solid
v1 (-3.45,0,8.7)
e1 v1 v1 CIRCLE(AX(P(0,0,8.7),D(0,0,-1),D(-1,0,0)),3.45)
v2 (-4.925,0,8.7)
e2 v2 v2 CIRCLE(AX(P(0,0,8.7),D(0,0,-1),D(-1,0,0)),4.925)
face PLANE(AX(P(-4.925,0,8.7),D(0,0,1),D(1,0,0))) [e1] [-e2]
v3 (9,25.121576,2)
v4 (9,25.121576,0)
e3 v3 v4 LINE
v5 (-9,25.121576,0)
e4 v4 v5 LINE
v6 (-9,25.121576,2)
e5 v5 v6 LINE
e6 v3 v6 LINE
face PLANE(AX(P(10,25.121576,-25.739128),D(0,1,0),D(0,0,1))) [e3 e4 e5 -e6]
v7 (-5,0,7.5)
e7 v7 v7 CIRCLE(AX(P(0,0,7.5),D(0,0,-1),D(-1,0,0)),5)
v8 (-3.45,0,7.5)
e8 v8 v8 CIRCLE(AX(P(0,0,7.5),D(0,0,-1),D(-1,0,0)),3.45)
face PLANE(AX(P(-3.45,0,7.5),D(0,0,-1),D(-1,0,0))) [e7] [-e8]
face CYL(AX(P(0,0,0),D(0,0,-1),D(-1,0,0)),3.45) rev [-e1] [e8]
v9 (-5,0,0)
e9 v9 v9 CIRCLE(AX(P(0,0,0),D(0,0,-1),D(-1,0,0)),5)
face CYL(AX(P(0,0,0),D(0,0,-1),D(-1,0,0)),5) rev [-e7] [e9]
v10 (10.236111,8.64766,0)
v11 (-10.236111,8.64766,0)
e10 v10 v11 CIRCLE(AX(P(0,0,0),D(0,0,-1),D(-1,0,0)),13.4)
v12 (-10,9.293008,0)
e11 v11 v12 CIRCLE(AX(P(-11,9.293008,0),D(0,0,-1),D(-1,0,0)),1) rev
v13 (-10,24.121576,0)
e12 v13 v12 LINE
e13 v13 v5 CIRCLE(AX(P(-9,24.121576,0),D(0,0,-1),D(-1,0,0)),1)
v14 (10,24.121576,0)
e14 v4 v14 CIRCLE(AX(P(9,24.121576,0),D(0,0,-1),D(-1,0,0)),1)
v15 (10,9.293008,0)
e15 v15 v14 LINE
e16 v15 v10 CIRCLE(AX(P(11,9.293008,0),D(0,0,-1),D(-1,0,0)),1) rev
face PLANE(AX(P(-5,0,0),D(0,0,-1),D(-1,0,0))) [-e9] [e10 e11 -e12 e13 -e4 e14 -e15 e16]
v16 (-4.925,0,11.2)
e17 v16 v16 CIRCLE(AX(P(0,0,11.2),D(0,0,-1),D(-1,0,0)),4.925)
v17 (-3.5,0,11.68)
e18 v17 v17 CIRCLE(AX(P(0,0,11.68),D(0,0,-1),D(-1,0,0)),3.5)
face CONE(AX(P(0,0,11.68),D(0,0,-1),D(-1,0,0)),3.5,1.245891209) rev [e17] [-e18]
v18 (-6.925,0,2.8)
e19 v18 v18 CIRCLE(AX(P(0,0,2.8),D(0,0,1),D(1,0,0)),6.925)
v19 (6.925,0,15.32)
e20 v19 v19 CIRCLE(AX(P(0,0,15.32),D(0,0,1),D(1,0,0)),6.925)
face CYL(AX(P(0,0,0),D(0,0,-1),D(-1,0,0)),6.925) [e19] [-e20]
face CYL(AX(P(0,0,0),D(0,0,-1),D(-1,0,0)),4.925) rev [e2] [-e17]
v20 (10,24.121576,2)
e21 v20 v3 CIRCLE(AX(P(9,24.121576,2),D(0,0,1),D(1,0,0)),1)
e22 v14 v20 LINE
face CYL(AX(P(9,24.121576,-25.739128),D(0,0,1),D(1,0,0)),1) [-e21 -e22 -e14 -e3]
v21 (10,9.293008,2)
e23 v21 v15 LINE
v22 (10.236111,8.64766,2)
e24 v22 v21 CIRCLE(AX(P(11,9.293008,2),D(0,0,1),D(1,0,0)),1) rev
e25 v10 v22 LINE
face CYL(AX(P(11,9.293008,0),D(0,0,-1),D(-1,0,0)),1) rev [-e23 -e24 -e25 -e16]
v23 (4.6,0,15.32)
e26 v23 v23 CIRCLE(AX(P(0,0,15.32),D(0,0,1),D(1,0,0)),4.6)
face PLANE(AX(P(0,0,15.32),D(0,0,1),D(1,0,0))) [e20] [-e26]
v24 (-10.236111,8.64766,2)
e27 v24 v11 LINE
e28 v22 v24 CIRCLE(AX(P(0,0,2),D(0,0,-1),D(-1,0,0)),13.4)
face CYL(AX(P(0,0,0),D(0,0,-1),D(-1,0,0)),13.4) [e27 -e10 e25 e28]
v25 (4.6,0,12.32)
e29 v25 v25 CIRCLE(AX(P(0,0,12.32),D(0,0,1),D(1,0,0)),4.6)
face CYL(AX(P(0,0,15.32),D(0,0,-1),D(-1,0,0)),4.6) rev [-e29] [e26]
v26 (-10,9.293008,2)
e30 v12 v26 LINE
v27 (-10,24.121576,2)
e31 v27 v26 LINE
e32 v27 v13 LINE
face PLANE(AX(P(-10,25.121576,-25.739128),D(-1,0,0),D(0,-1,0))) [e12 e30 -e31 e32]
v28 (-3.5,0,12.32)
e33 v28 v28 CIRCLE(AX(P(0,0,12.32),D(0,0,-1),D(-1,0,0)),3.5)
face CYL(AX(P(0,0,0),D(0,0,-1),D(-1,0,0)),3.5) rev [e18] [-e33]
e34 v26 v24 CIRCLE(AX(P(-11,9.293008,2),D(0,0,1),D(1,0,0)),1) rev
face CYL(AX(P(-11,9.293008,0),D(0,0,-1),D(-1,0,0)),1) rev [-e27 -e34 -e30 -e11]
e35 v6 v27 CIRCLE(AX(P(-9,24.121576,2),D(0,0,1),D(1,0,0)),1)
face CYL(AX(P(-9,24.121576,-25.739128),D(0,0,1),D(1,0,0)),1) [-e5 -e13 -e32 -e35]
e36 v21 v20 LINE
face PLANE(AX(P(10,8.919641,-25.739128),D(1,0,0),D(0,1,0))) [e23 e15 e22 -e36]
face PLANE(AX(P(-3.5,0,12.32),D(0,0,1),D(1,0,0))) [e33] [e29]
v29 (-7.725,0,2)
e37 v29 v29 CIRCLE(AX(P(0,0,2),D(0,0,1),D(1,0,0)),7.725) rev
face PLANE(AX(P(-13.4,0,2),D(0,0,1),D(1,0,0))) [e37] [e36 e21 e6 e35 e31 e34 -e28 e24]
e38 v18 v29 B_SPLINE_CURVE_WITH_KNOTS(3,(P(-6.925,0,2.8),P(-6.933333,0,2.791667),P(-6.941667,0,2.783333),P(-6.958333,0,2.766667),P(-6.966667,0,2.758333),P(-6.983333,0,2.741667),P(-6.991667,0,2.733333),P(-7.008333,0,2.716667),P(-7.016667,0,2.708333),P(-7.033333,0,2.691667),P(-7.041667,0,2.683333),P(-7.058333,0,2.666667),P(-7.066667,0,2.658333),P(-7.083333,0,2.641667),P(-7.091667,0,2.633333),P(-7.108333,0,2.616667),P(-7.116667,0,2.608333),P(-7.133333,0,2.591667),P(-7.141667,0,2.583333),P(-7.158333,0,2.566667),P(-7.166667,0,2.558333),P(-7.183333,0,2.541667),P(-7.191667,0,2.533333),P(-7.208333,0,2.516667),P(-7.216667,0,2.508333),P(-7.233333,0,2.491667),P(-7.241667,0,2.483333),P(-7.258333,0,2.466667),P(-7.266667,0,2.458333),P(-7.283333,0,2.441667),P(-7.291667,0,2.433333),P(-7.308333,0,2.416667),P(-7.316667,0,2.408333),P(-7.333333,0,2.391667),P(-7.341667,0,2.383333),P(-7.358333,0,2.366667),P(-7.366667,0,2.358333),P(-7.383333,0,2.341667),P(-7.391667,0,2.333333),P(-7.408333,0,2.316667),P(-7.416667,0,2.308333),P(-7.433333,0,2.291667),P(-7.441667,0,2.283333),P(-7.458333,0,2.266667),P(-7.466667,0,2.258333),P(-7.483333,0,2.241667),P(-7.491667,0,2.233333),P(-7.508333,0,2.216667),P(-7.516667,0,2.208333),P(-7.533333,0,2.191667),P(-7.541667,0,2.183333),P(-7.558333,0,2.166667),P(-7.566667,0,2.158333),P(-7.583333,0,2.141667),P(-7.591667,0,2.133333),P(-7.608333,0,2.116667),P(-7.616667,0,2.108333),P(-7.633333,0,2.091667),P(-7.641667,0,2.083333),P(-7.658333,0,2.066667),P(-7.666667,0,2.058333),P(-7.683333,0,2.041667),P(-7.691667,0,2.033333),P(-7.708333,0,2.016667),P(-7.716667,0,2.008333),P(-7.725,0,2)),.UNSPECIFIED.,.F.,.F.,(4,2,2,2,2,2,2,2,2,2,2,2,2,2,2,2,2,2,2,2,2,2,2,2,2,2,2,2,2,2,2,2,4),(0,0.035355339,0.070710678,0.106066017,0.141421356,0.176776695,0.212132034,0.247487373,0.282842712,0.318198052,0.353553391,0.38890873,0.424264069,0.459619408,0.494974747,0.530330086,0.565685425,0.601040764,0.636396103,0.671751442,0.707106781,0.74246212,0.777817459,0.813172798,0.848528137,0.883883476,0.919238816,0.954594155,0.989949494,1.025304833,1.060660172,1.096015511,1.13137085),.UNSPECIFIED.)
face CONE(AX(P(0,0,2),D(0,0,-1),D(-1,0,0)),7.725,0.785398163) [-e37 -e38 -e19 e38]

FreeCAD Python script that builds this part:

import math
import FreeCAD as App
import Part
import Sketcher
Q = App.Units.Quantity


def edges_at(feature, points):
    """Names of the edges that pass closest to the given points."""
    edges = feature.Shape.Edges
    near = lambda p: min(range(len(edges)), key=lambda i: edges[i].distToShape(Part.Vertex(*p))[0])
    return sorted({f"Edge{near(p) + 1}" for p in points})

doc = App.newDocument("Part")
body = doc.addObject("PartDesign::Body", "Body")

# Sketch on XZ plane
sketch1 = body.newObject("Sketcher::SketchObject", "Sketch")
sketch1.AttachmentSupport = (doc.getObject("XZ_Plane"), [""])
sketch1.MapMode = "FlatFace"
sketch1.addGeometry(Part.LineSegment(App.Vector(-3.5, 12.3, 0), App.Vector(-3.5, 11.7, 0)), False)
sketch1.addGeometry(Part.LineSegment(App.Vector(-3.5, 11.7, 0), App.Vector(-4.9, 11.2, 0)), False)
sketch1.addGeometry(Part.LineSegment(App.Vector(-4.9, 11.2, 0), App.Vector(-4.9, 8.7, 0)), False)
sketch1.addGeometry(Part.LineSegment(App.Vector(-4.9, 8.7, 0), App.Vector(-3.5, 8.7, 0)), False)
sketch1.addGeometry(Part.LineSegment(App.Vector(-3.5, 8.7, 0), App.Vector(-3.5, 7.5, 0)), False)
sketch1.addGeometry(Part.LineSegment(App.Vector(-3.5, 7.5, 0), App.Vector(-5, 7.5, 0)), False)
sketch1.addGeometry(Part.LineSegment(App.Vector(-5, 7.5, 0), App.Vector(-5, 0, 0)), False)
sketch1.addGeometry(Part.LineSegment(App.Vector(-5, 0, 0), App.Vector(-13.4, 0, 0)), False)
sketch1.addGeometry(Part.LineSegment(App.Vector(-13.4, 0, 0), App.Vector(-13.4, 2, 0)), False)
sketch1.addGeometry(Part.LineSegment(App.Vector(-13.4, 2, 0), App.Vector(-6.9, 2, 0)), False)
sketch1.addGeometry(Part.LineSegment(App.Vector(-6.9, 2, 0), App.Vector(-6.9, 12.3, 0)), False)
sketch1.addGeometry(Part.LineSegment(App.Vector(-6.9, 12.3, 0), App.Vector(-3.5, 12.3, 0)), False)
sketch1.addConstraint(Sketcher.Constraint("Coincident", 0, 2, 1, 1))
sketch1.addConstraint(Sketcher.Constraint("Coincident", 1, 2, 2, 1))
sketch1.addConstraint(Sketcher.Constraint("Coincident", 2, 2, 3, 1))
sketch1.addConstraint(Sketcher.Constraint("Coincident", 3, 2, 4, 1))
sketch1.addConstraint(Sketcher.Constraint("Coincident", 4, 2, 5, 1))
sketch1.addConstraint(Sketcher.Constraint("Coincident", 5, 2, 6, 1))
sketch1.addConstraint(Sketcher.Constraint("Coincident", 6, 2, 7, 1))
sketch1.addConstraint(Sketcher.Constraint("Coincident", 7, 2, 8, 1))
sketch1.addConstraint(Sketcher.Constraint("Coincident", 8, 2, 9, 1))
sketch1.addConstraint(Sketcher.Constraint("Coincident", 9, 2, 10, 1))
sketch1.addConstraint(Sketcher.Constraint("Coincident", 10, 2, 11, 1))
sketch1.addConstraint(Sketcher.Constraint("Coincident", 11, 2, 0, 1))
sketch1.addConstraint(Sketcher.Constraint("Vertical", 0))
sketch1.addConstraint(Sketcher.Constraint("Vertical", 2))
sketch1.addConstraint(Sketcher.Constraint("Horizontal", 3))
sketch1.addConstraint(Sketcher.Constraint("Vertical", 4))
sketch1.addConstraint(Sketcher.Constraint("Horizontal", 5))
sketch1.addConstraint(Sketcher.Constraint("Vertical", 6))
sketch1.addConstraint(Sketcher.Constraint("Horizontal", 7))
sketch1.addConstraint(Sketcher.Constraint("Vertical", 8))
sketch1.addConstraint(Sketcher.Constraint("Horizontal", 9))
sketch1.addConstraint(Sketcher.Constraint("Vertical", 10))
sketch1.addConstraint(Sketcher.Constraint("Horizontal", 11))
sketch1.addConstraint(Sketcher.Constraint("PointOnObject", 6, 2, -1))
sketch1.addConstraint(Sketcher.Constraint("DistanceY", 8, 1, 8, 2, Q("2 mm")))
sketch1.addConstraint(Sketcher.Constraint("DistanceX", 7, 2, 7, 1, Q("8.4 mm")))
sketch1.addConstraint(Sketcher.Constraint("DistanceY", 2, 2, 2, 1, Q("2.5 mm")))
sketch1.addConstraint(Sketcher.Constraint("DistanceY", 4, 2, 4, 1, Q("1.2 mm")))
sketch1.addConstraint(Sketcher.Constraint("DistanceY", 6, 2, 6, 1, Q("7.5 mm")))
sketch1.addConstraint(Sketcher.Constraint("DistanceX", 5, 2, -1, 1, Q("5 mm")))
sketch1.addConstraint(Sketcher.Constraint("DistanceX", 10, 2, 1, 2, Q("2 mm")))
sketch1.addConstraint(Sketcher.Constraint("DistanceX", 5, 2, 5, 1, Q("1.55 mm")))
sketch1.addConstraint(Sketcher.Constraint("DistanceY", 0, 2, 0, 1, Q("0.64 mm")))
sketch1.addConstraint(Sketcher.Constraint("DistanceY", 10, 1, 10, 2, Q("10.32 mm")))
sketch1.addConstraint(Sketcher.Constraint("DistanceX", 0, 2, -1, 1, Q("3.5 mm")))
sketch1.addConstraint(Sketcher.Constraint("DistanceX", 3, 1, 3, 2, Q("1.475 mm")))
revolution = body.newObject("PartDesign::Revolution", "Revolution")
revolution.Profile = sketch1
revolution.ReferenceAxis = (sketch1, ["V_Axis"])
revolution.Angle = 360

# Sketch on XY plane
sketch2 = body.newObject("Sketcher::SketchObject", "Sketch001")
sketch2.AttachmentSupport = (doc.getObject("XY_Plane"), [""])
sketch2.MapMode = "FlatFace"
sketch2.AttachmentOffset = App.Placement(App.Vector(0, 0, 2), App.Rotation())
sketch2.addGeometry(Part.LineSegment(App.Vector(10, 9, 0), App.Vector(10, 25, 0)), False)
sketch2.addGeometry(Part.LineSegment(App.Vector(10, 25, 0), App.Vector(-10, 25, 0)), False)
sketch2.addGeometry(Part.LineSegment(App.Vector(-10, 25, 0), App.Vector(-10, 9, 0)), False)
sketch2.addGeometry(Part.ArcOfCircle(Part.Circle(App.Vector(0, 0, 0), App.Vector(0, 0, 1), 13), math.radians(42), math.radians(138)), False)
sketch2.addConstraint(Sketcher.Constraint("Coincident", 0, 2, 1, 1))
sketch2.addConstraint(Sketcher.Constraint("Coincident", 1, 2, 2, 1))
sketch2.addConstraint(Sketcher.Constraint("Coincident", 2, 2, 3, 2))
sketch2.addConstraint(Sketcher.Constraint("Coincident", 3, 1, 0, 1))
sketch2.addConstraint(Sketcher.Constraint("Vertical", 0))
sketch2.addConstraint(Sketcher.Constraint("Horizontal", 1))
sketch2.addConstraint(Sketcher.Constraint("Vertical", 2))
sketch2.addConstraint(Sketcher.Constraint("Coincident", 3, 3, -1, 1))
sketch2.addConstraint(Sketcher.Constraint("Horizontal", 2, 2, 3, 1))
sketch2.addConstraint(Sketcher.Constraint("Radius", 3, Q("13.4 mm")))
sketch2.addConstraint(Sketcher.Constraint("DistanceX", 1, 2, 1, 1, Q("20 mm")))
sketch2.addConstraint(Sketcher.Constraint("DistanceY", 0, 1, 0, 2, Q("16.201935 mm")))
pad1 = body.newObject("PartDesign::Pad", "Pad")
pad1.Profile = sketch2
pad1.Length = 2
pad1.Reversed = True
doc.recompute()

fillet = body.newObject("PartDesign::Fillet", "Fillet")
fillet.Base = (pad1, edges_at(pad1, [
    (10, 25.122, 1),
    (-10, 25.122, 1),
    (-10, 8.92, 1),
    (10, 8.92, 1),
]))
fillet.Radius = 1
doc.recompute()

chamfer = body.newObject("PartDesign::Chamfer", "Chamfer")
chamfer.Base = (fillet, edges_at(fillet, [(6.925, 0, 2)]))
chamfer.Size = 0.8

# Sketch on XY plane
sketch3 = body.newObject("Sketcher::SketchObject", "Sketch002")
sketch3.AttachmentSupport = (doc.getObject("XY_Plane"), [""])
sketch3.MapMode = "FlatFace"
sketch3.AttachmentOffset = App.Placement(App.Vector(0, 0, 12.32), App.Rotation())
sketch3.addGeometry(Part.Circle(App.Vector(0, 0, 0), App.Vector(0, 0, 1), 6.9), False)
sketch3.addGeometry(Part.Circle(App.Vector(0, 0, 0), App.Vector(0, 0, 1), 4.6), False)
sketch3.addConstraint(Sketcher.Constraint("Coincident", 0, 3, -1, 1))
sketch3.addConstraint(Sketcher.Constraint("Coincident", 1, 3, -1, 1))
sketch3.addConstraint(Sketcher.Constraint("Diameter", 1, Q("9.2 mm")))
sketch3.addConstraint(Sketcher.Constraint("Diameter", 0, Q("13.85 mm")))
pad2 = body.newObject("PartDesign::Pad", "Pad001")
pad2.Profile = sketch3
pad2.Length = 3

doc.recompute()
